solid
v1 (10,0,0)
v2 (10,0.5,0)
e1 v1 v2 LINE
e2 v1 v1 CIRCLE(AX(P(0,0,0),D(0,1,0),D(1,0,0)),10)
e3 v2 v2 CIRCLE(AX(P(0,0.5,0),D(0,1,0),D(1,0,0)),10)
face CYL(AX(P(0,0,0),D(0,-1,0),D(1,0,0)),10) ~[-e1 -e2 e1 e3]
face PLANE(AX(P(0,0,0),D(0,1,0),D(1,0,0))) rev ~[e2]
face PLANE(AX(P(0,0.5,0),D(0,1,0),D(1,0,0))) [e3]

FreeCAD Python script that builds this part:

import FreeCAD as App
import Part
import Sketcher

doc = App.newDocument("Part")
body = doc.addObject("PartDesign::Body", "Body")

# Sketch on XZ plane
sketch1 = body.newObject("Sketcher::SketchObject", "Sketch")
sketch1.AttachmentSupport = (doc.getObject("XZ_Plane"), [""])
sketch1.MapMode = "FlatFace"
sketch1.addGeometry(Part.Circle(App.Vector(0, 0, 0), App.Vector(0, 0, 1), 10), False)
sketch1.addConstraint(Sketcher.Constraint("Coincident", 0, 3, -1, 1))
sketch1.addConstraint(Sketcher.Constraint("Diameter", 0, 20.0))
pad1 = body.newObject("PartDesign::Pad", "Pad")
pad1.Profile = sketch1
pad1.Length = 0.5
pad1.Reversed = True

doc.recompute()
